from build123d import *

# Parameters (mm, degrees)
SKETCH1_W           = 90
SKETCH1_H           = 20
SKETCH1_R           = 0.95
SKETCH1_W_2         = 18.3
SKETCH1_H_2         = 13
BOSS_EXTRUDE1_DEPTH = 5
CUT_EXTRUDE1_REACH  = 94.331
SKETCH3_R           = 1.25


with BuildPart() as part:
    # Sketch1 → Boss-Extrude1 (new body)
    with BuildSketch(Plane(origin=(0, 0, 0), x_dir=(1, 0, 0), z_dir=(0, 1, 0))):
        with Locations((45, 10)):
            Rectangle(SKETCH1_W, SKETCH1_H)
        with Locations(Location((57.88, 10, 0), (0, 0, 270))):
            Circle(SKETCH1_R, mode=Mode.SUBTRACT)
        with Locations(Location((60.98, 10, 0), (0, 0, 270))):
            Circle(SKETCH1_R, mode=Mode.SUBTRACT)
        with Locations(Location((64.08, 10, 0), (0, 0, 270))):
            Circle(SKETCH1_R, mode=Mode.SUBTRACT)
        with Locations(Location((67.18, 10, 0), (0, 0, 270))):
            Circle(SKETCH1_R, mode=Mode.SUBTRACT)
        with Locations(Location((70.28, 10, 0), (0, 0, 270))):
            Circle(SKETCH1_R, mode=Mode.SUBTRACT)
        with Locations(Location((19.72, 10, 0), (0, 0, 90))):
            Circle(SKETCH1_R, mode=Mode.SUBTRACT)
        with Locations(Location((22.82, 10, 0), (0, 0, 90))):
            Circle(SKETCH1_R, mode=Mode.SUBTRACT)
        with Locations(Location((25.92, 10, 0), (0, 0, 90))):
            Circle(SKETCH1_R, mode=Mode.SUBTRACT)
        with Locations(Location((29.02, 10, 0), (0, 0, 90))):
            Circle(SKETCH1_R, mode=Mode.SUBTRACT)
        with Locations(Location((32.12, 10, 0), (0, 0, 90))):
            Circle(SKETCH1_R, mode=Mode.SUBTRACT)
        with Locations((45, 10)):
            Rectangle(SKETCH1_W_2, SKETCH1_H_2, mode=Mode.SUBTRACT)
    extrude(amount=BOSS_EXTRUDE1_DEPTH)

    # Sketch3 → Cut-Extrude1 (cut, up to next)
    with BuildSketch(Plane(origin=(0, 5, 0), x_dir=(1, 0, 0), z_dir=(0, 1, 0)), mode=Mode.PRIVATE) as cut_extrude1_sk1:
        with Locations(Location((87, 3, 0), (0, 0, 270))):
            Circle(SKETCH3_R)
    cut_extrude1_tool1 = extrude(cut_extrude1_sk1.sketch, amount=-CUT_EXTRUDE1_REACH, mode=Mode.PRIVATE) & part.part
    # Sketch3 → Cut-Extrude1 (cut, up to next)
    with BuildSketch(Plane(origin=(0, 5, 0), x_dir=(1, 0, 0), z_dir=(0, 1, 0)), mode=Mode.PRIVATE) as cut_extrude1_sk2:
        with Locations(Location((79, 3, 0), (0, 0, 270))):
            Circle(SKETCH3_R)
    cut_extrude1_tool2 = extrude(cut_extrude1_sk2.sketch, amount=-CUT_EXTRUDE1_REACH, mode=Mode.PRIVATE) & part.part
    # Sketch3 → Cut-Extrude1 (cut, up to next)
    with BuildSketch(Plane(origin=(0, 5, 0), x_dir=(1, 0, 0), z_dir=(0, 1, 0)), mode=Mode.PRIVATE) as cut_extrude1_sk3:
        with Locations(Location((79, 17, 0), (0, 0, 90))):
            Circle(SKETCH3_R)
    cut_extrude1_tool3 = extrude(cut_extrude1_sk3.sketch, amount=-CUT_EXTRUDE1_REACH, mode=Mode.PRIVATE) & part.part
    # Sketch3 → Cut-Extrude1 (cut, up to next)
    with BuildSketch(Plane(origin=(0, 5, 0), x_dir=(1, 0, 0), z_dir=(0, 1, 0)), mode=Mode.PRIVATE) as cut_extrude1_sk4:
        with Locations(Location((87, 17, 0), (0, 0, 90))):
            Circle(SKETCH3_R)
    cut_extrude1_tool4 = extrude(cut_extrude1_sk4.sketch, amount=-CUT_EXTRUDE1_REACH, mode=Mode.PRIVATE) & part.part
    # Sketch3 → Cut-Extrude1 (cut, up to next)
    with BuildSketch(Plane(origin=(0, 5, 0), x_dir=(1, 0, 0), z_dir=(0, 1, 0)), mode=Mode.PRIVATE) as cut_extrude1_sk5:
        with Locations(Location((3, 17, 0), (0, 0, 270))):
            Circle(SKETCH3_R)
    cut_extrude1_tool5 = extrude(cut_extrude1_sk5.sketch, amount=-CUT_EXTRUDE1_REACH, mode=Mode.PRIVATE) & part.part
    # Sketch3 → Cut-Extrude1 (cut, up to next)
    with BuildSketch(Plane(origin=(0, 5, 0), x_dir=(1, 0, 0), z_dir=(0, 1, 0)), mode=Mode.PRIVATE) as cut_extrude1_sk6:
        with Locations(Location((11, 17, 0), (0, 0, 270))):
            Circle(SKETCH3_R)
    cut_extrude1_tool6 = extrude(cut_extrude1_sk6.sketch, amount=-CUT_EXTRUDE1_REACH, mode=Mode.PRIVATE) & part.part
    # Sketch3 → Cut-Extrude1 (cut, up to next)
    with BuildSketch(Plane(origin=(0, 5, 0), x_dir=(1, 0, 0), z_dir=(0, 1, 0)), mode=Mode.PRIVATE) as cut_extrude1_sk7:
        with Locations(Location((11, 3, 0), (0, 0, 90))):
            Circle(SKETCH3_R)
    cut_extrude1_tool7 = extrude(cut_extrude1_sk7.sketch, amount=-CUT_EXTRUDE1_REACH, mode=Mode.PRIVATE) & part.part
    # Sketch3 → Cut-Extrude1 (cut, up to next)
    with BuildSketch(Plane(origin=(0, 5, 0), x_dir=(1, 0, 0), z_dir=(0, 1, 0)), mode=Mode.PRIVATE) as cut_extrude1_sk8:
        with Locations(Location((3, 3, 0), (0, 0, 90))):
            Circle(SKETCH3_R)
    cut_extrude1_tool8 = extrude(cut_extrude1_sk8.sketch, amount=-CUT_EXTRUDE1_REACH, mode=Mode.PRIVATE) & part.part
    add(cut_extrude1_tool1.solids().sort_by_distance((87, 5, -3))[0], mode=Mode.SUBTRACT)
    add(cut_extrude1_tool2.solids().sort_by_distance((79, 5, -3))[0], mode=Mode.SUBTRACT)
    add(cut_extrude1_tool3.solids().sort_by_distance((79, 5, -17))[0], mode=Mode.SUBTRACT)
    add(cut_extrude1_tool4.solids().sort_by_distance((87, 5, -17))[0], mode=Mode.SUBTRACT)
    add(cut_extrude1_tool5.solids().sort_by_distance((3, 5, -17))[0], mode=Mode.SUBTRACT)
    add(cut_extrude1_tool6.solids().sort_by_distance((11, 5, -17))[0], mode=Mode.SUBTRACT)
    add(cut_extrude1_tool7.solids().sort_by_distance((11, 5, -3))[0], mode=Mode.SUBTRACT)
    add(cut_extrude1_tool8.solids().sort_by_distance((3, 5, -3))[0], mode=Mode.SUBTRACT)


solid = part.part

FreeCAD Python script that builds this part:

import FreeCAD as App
import Part
import Sketcher
from FreeCAD import Vector
Q = App.Units.Quantity

doc = App.newDocument("Part")
body = doc.addObject("PartDesign::Body", "Body")

sketch1 = body.newObject("Sketcher::SketchObject", "Sketch")
sketch1.AttachmentSupport = (doc.getObject("XZ_Plane"), [""])
sketch1.MapMode = "FlatFace"
sketch1.addGeometry([
    Part.LineSegment(Vector(0, -20, 0), Vector(0, 0, 0)),
    Part.LineSegment(Vector(0, 0, 0), Vector(90, 0, 0)),
    Part.LineSegment(Vector(90, 0, 0), Vector(90, -20, 0)),
    Part.LineSegment(Vector(90, -20, 0), Vector(0, -20, 0)),
    Part.Circle(Vector(19.72, -10, 0), Vector(0, 0, 1), 0.95),
    Part.Circle(Vector(22.82, -10, 0), Vector(0, 0, 1), 0.95),
    Part.Circle(Vector(25.92, -10, 0), Vector(0, 0, 1), 0.95),
    Part.Circle(Vector(29.02, -10, 0), Vector(0, 0, 1), 0.95),
    Part.Circle(Vector(32.12, -10, 0), Vector(0, 0, 1), 0.95),
    Part.LineSegment(Vector(54.15, -3.5, 0), Vector(35.85, -3.5, 0)),
    Part.LineSegment(Vector(35.85, -3.5, 0), Vector(35.85, -16.5, 0)),
    Part.LineSegment(Vector(35.85, -16.5, 0), Vector(54.15, -16.5, 0)),
    Part.LineSegment(Vector(54.15, -16.5, 0), Vector(54.15, -3.5, 0)),
    Part.Circle(Vector(57.88, -10, 0), Vector(0, 0, 1), 0.95),
    Part.Circle(Vector(60.98, -10, 0), Vector(0, 0, 1), 0.95),
    Part.Circle(Vector(64.08, -10, 0), Vector(0, 0, 1), 0.95),
    Part.Circle(Vector(67.18, -10, 0), Vector(0, 0, 1), 0.95),
    Part.Circle(Vector(70.28, -10, 0), Vector(0, 0, 1), 0.95),
], False)
sketch1.addConstraint([
    Sketcher.Constraint("Coincident", 0, 2, 1, 1),
    Sketcher.Constraint("Coincident", 1, 2, 2, 1),
    Sketcher.Constraint("Coincident", 2, 2, 3, 1),
    Sketcher.Constraint("Coincident", 3, 2, 0, 1),
    Sketcher.Constraint("Coincident", 9, 2, 10, 1),
    Sketcher.Constraint("Coincident", 10, 2, 11, 1),
    Sketcher.Constraint("Coincident", 11, 2, 12, 1),
    Sketcher.Constraint("Coincident", 12, 2, 9, 1),
    Sketcher.Constraint("Vertical", 0),
    Sketcher.Constraint("Horizontal", 1),
    Sketcher.Constraint("Vertical", 2),
    Sketcher.Constraint("Horizontal", 3),
    Sketcher.Constraint("Horizontal", 9),
    Sketcher.Constraint("Vertical", 10),
    Sketcher.Constraint("Horizontal", 11),
    Sketcher.Constraint("Vertical", 12),
    Sketcher.Constraint("Coincident", 0, 2, -1, 1),
    Sketcher.Constraint("Equal", 4, 5),
    Sketcher.Constraint("Equal", 5, 6),
    Sketcher.Constraint("Equal", 6, 7),
    Sketcher.Constraint("Equal", 7, 8),
    Sketcher.Constraint("Equal", 8, 13),
    Sketcher.Constraint("Equal", 13, 14),
    Sketcher.Constraint("Equal", 14, 15),
    Sketcher.Constraint("Equal", 15, 16),
    Sketcher.Constraint("Equal", 16, 17),
    Sketcher.Constraint("Horizontal", 4, 3, 5, 3),
    Sketcher.Constraint("Horizontal", 5, 3, 6, 3),
    Sketcher.Constraint("Horizontal", 6, 3, 7, 3),
    Sketcher.Constraint("Horizontal", 7, 3, 8, 3),
    Sketcher.Constraint("Horizontal", 8, 3, 13, 3),
    Sketcher.Constraint("Horizontal", 13, 3, 14, 3),
    Sketcher.Constraint("Horizontal", 14, 3, 15, 3),
    Sketcher.Constraint("Horizontal", 15, 3, 16, 3),
    Sketcher.Constraint("Horizontal", 16, 3, 17, 3),
    Sketcher.Constraint("Diameter", 4, Q("1.9 mm")),
    Sketcher.Constraint("DistanceX", 1, 1, 1, 2, Q("90 mm")),
    Sketcher.Constraint("DistanceY", 0, 1, 0, 2, Q("20 mm")),
    Sketcher.Constraint("DistanceY", 10, 2, 10, 1, Q("13 mm")),
    Sketcher.Constraint("DistanceX", 9, 2, 9, 1, Q("18.3 mm")),
    Sketcher.Constraint("DistanceY", 4, 3, -1, 1, Q("10 mm")),
    Sketcher.Constraint("DistanceY", 9, 2, -1, 1, Q("3.5 mm")),
    Sketcher.Constraint("DistanceX", 4, 3, 5, 3, Q("3.1 mm")),
    Sketcher.Constraint("DistanceX", 5, 3, 6, 3, Q("3.1 mm")),
    Sketcher.Constraint("DistanceX", 6, 3, 7, 3, Q("3.1 mm")),
    Sketcher.Constraint("DistanceX", 7, 3, 8, 3, Q("3.1 mm")),
    Sketcher.Constraint("DistanceX", 13, 3, 14, 3, Q("3.1 mm")),
    Sketcher.Constraint("DistanceX", 14, 3, 15, 3, Q("3.1 mm")),
    Sketcher.Constraint("DistanceX", 15, 3, 16, 3, Q("3.1 mm")),
    Sketcher.Constraint("DistanceX", 16, 3, 17, 3, Q("3.1 mm")),
    Sketcher.Constraint("DistanceX", -1, 1, 4, 3, Q("19.72 mm")),
    Sketcher.Constraint("DistanceX", -1, 1, 13, 3, Q("57.88 mm")),
    Sketcher.Constraint("DistanceX", -1, 1, 9, 2, Q("35.85 mm")),
])
pad1 = body.newObject("PartDesign::Pad", "Pad")
pad1.Profile = sketch1
pad1.Length = 5
pad1.Reversed = True

sketch2 = body.newObject("Sketcher::SketchObject", "Sketch001")
sketch2.AttachmentSupport = (doc.getObject("XZ_Plane"), [""])
sketch2.MapMode = "FlatFace"
sketch2.AttachmentOffset = App.Placement(Vector(0, 0, -5), App.Rotation())
sketch2.addGeometry(Part.Circle(Vector(87, -3, 0), Vector(0, 0, 1), 1.25), False)
sketch2.addConstraint([
    Sketcher.Constraint("Diameter", 0, Q("2.5 mm")),
    Sketcher.Constraint("DistanceX", -1, 1, 0, 3, Q("87 mm")),
    Sketcher.Constraint("DistanceY", 0, 3, -1, 1, Q("3 mm")),
])
pocket1 = body.newObject("PartDesign::Pocket", "Pocket")
pocket1.Profile = sketch2
pocket1.Type = "UpToFirst"
pocket1.Reversed = True

sketch3 = body.newObject("Sketcher::SketchObject", "Sketch002")
sketch3.AttachmentSupport = (doc.getObject("XZ_Plane"), [""])
sketch3.MapMode = "FlatFace"
sketch3.AttachmentOffset = App.Placement(Vector(0, 0, -5), App.Rotation())
sketch3.addGeometry(Part.Circle(Vector(79, -3, 0), Vector(0, 0, 1), 1.25), False)
sketch3.addConstraint([
    Sketcher.Constraint("Diameter", 0, Q("2.5 mm")),
    Sketcher.Constraint("DistanceX", -1, 1, 0, 3, Q("79 mm")),
    Sketcher.Constraint("DistanceY", 0, 3, -1, 1, Q("3 mm")),
])
pocket2 = body.newObject("PartDesign::Pocket", "Pocket001")
pocket2.Profile = sketch3
pocket2.Type = "UpToFirst"
pocket2.Reversed = True

sketch4 = body.newObject("Sketcher::SketchObject", "Sketch003")
sketch4.AttachmentSupport = (doc.getObject("XZ_Plane"), [""])
sketch4.MapMode = "FlatFace"
sketch4.AttachmentOffset = App.Placement(Vector(0, 0, -5), App.Rotation())
sketch4.addGeometry(Part.Circle(Vector(79, -17, 0), Vector(0, 0, 1), 1.25), False)
sketch4.addConstraint([
    Sketcher.Constraint("Diameter", 0, Q("2.5 mm")),
    Sketcher.Constraint("DistanceX", -1, 1, 0, 3, Q("79 mm")),
    Sketcher.Constraint("DistanceY", 0, 3, -1, 1, Q("17 mm")),
])
pocket3 = body.newObject("PartDesign::Pocket", "Pocket002")
pocket3.Profile = sketch4
pocket3.Type = "UpToFirst"
pocket3.Reversed = True

sketch5 = body.newObject("Sketcher::SketchObject", "Sketch004")
sketch5.AttachmentSupport = (doc.getObject("XZ_Plane"), [""])
sketch5.MapMode = "FlatFace"
sketch5.AttachmentOffset = App.Placement(Vector(0, 0, -5), App.Rotation())
sketch5.addGeometry(Part.Circle(Vector(87, -17, 0), Vector(0, 0, 1), 1.25), False)
sketch5.addConstraint([
    Sketcher.Constraint("Diameter", 0, Q("2.5 mm")),
    Sketcher.Constraint("DistanceX", -1, 1, 0, 3, Q("87 mm")),
    Sketcher.Constraint("DistanceY", 0, 3, -1, 1, Q("17 mm")),
])
pocket4 = body.newObject("PartDesign::Pocket", "Pocket003")
pocket4.Profile = sketch5
pocket4.Type = "UpToFirst"
pocket4.Reversed = True

sketch6 = body.newObject("Sketcher::SketchObject", "Sketch005")
sketch6.AttachmentSupport = (doc.getObject("XZ_Plane"), [""])
sketch6.MapMode = "FlatFace"
sketch6.AttachmentOffset = App.Placement(Vector(0, 0, -5), App.Rotation())
sketch6.addGeometry(Part.Circle(Vector(3, -17, 0), Vector(0, 0, 1), 1.25), False)
sketch6.addConstraint([
    Sketcher.Constraint("Diameter", 0, Q("2.5 mm")),
    Sketcher.Constraint("DistanceX", -1, 1, 0, 3, Q("3 mm")),
    Sketcher.Constraint("DistanceY", 0, 3, -1, 1, Q("17 mm")),
])
pocket5 = body.newObject("PartDesign::Pocket", "Pocket004")
pocket5.Profile = sketch6
pocket5.Type = "UpToFirst"
pocket5.Reversed = True

sketch7 = body.newObject("Sketcher::SketchObject", "Sketch006")
sketch7.AttachmentSupport = (doc.getObject("XZ_Plane"), [""])
sketch7.MapMode = "FlatFace"
sketch7.AttachmentOffset = App.Placement(Vector(0, 0, -5), App.Rotation())
sketch7.addGeometry(Part.Circle(Vector(11, -17, 0), Vector(0, 0, 1), 1.25), False)
sketch7.addConstraint([
    Sketcher.Constraint("Diameter", 0, Q("2.5 mm")),
    Sketcher.Constraint("DistanceX", -1, 1, 0, 3, Q("11 mm")),
    Sketcher.Constraint("DistanceY", 0, 3, -1, 1, Q("17 mm")),
])
pocket6 = body.newObject("PartDesign::Pocket", "Pocket005")
pocket6.Profile = sketch7
pocket6.Type = "UpToFirst"
pocket6.Reversed = True

sketch8 = body.newObject("Sketcher::SketchObject", "Sketch007")
sketch8.AttachmentSupport = (doc.getObject("XZ_Plane"), [""])
sketch8.MapMode = "FlatFace"
sketch8.AttachmentOffset = App.Placement(Vector(0, 0, -5), App.Rotation())
sketch8.addGeometry(Part.Circle(Vector(11, -3, 0), Vector(0, 0, 1), 1.25), False)
sketch8.addConstraint([
    Sketcher.Constraint("Diameter", 0, Q("2.5 mm")),
    Sketcher.Constraint("DistanceX", -1, 1, 0, 3, Q("11 mm")),
    Sketcher.Constraint("DistanceY", 0, 3, -1, 1, Q("3 mm")),
])
pocket7 = body.newObject("PartDesign::Pocket", "Pocket006")
pocket7.Profile = sketch8
pocket7.Type = "UpToFirst"
pocket7.Reversed = True

sketch9 = body.newObject("Sketcher::SketchObject", "Sketch008")
sketch9.AttachmentSupport = (doc.getObject("XZ_Plane"), [""])
sketch9.MapMode = "FlatFace"
sketch9.AttachmentOffset = App.Placement(Vector(0, 0, -5), App.Rotation())
sketch9.addGeometry(Part.Circle(Vector(3, -3, 0), Vector(0, 0, 1), 1.25), False)
sketch9.addConstraint([
    Sketcher.Constraint("Diameter", 0, Q("2.5 mm")),
    Sketcher.Constraint("DistanceX", -1, 1, 0, 3, Q("3 mm")),
    Sketcher.Constraint("DistanceY", 0, 3, -1, 1, Q("3 mm")),
])
pocket8 = body.newObject("PartDesign::Pocket", "Pocket007")
pocket8.Profile = sketch9
pocket8.Type = "UpToFirst"
pocket8.Reversed = True

doc.recompute()
